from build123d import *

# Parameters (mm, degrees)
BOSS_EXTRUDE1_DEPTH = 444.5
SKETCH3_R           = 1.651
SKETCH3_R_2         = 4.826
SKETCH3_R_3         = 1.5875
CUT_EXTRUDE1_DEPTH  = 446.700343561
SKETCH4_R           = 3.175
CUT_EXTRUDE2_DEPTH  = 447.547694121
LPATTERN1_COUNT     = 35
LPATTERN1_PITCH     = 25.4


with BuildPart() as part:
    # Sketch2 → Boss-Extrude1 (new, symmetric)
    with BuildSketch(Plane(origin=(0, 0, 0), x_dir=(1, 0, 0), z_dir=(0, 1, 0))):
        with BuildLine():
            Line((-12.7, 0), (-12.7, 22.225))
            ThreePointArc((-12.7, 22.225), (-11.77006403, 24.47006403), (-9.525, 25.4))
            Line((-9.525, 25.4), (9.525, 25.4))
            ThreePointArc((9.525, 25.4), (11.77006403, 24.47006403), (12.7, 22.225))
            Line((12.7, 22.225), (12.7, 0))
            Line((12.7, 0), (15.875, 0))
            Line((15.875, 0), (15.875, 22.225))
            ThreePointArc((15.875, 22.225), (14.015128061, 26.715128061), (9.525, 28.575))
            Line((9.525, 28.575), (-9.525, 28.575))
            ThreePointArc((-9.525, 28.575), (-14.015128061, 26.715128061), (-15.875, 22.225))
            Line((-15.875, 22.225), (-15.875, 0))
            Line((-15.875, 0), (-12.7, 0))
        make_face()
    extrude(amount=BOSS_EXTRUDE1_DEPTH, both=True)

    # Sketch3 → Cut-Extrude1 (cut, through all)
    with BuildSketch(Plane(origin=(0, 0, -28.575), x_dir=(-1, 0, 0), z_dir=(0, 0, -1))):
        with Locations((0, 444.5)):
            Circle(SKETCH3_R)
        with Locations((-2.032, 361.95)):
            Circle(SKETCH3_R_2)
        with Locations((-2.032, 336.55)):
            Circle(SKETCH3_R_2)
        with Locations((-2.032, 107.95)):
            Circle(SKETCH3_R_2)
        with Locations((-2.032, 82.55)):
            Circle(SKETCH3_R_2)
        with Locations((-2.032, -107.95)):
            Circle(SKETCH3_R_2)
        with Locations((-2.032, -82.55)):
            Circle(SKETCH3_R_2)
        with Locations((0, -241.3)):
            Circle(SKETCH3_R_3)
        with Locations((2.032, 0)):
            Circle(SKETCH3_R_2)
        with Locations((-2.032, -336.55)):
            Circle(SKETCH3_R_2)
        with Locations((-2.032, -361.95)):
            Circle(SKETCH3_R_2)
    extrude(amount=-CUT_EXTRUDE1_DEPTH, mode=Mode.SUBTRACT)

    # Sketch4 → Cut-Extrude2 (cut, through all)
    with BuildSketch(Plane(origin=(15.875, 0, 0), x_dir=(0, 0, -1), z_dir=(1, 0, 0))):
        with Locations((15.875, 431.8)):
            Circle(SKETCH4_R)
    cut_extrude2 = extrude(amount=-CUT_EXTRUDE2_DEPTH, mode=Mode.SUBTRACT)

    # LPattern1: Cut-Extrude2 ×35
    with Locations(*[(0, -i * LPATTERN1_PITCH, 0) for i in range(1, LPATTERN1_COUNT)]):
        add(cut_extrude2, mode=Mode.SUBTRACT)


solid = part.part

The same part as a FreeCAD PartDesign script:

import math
import FreeCAD as App
import Part
import Sketcher
from FreeCAD import Vector
Q = App.Units.Quantity

doc = App.newDocument("Part")
body = doc.addObject("PartDesign::Body", "Body")

# Sketch on XZ plane
sketch1 = doc.addObject("Sketcher::SketchObject", "Sketch")
body.addObject(sketch1)
sketch1.AttachmentSupport = (doc.XZ_Plane, [""])
sketch1.MapMode = "FlatFace"
sketch1.addGeometry([
    Part.LineSegment(Vector(-12.7, 0, 0), Vector(-12.7, -22.2, 0)),  # 0
    Part.ArcOfCircle(Part.Circle(Vector(-9.5, -22.2, 0), Vector(0, 0, 1), 3.2), math.radians(-180), math.radians(-90)),  # 1
    Part.LineSegment(Vector(-9.5, -25.4, 0), Vector(9.5, -25.4, 0)),  # 2
    Part.ArcOfCircle(Part.Circle(Vector(9.5, -22.2, 0), Vector(0, 0, 1), 3.2), math.radians(-90), math.radians(0)),  # 3
    Part.LineSegment(Vector(12.7, -22.2, 0), Vector(12.7, 0, 0)),  # 4
    Part.LineSegment(Vector(12.7, 0, 0), Vector(15.9, 0, 0)),  # 5
    Part.LineSegment(Vector(15.9, 0, 0), Vector(15.9, -22.2, 0)),  # 6
    Part.ArcOfCircle(Part.Circle(Vector(9.5, -22.2, 0), Vector(0, 0, 1), 6.3), math.radians(-90), math.radians(0)),  # 7
    Part.LineSegment(Vector(9.5, -28.6, 0), Vector(-9.5, -28.6, 0)),  # 8
    Part.ArcOfCircle(Part.Circle(Vector(-9.5, -22.2, 0), Vector(0, 0, 1), 6.3), math.radians(180), math.radians(270)),  # 9
    Part.LineSegment(Vector(-15.9, -22.2, 0), Vector(-15.9, 0, 0)),  # 10
    Part.LineSegment(Vector(-15.9, 0, 0), Vector(-12.7, 0, 0)),  # 11
], False)
sketch1.addConstraint([
    Sketcher.Constraint("Tangent", 0, 2, 1, 1),
    Sketcher.Constraint("Tangent", 1, 2, 2, 1),
    Sketcher.Constraint("Tangent", 2, 2, 3, 1),
    Sketcher.Constraint("Tangent", 3, 2, 4, 1),
    Sketcher.Constraint("Coincident", 4, 2, 5, 1),
    Sketcher.Constraint("Coincident", 5, 2, 6, 1),
    Sketcher.Constraint("Tangent", 6, 2, 7, 2),
    Sketcher.Constraint("Tangent", 7, 1, 8, 1),
    Sketcher.Constraint("Tangent", 8, 2, 9, 2),
    Sketcher.Constraint("Tangent", 9, 1, 10, 1),
    Sketcher.Constraint("Coincident", 10, 2, 11, 1),
    Sketcher.Constraint("Coincident", 11, 2, 0, 1),
    Sketcher.Constraint("Vertical", 0),
    Sketcher.Constraint("Horizontal", 2),
    Sketcher.Constraint("Vertical", 4),
    Sketcher.Constraint("Horizontal", 5),
    Sketcher.Constraint("Vertical", 6),
    Sketcher.Constraint("Horizontal", 8),
    Sketcher.Constraint("Vertical", 10),
    Sketcher.Constraint("Horizontal", 11),
    Sketcher.Constraint("Coincident", 7, 3, 3, 3),
    Sketcher.Constraint("Coincident", 9, 3, 1, 3),
    Sketcher.Constraint("Equal", 1, 3),
    Sketcher.Constraint("Symmetric", 5, 2, 10, 2, -1, 1),
    Sketcher.Constraint("PointOnObject", 4, 2, -1),
    Sketcher.Constraint("Radius", 7, Q("0.25 in")),
    Sketcher.Constraint("DistanceY", 1, 2, -1, 1, Q("1 in")),
    Sketcher.Constraint("Radius", 1, Q("0.125 in")),
    Sketcher.Constraint("DistanceX", 2, 1, 2, 2, Q("0.75 in")),
])
pad1 = doc.addObject("PartDesign::Pad", "Pad")
body.addObject(pad1)
pad1.Profile = sketch1
pad1.Length = Q("35 in")
pad1.Midplane = True

# Sketch on XY plane
sketch2 = doc.addObject("Sketcher::SketchObject", "Sketch001")
body.addObject(sketch2)
sketch2.AttachmentSupport = (doc.XY_Plane, [""])
sketch2.MapMode = "FlatFace"
sketch2.AttachmentOffset = App.Placement(Vector(0, 0, -1.125 * 25.4), App.Rotation())
sketch2.addGeometry([
    Part.Circle(Vector(0, 444.5, 0), Vector(0, 0, 1), 1.7),  # 0
    Part.Circle(Vector(2, 361.9, 0), Vector(0, 0, 1), 4.8),  # 1
    Part.Circle(Vector(2, 336.6, 0), Vector(0, 0, 1), 4.8),  # 2
    Part.Circle(Vector(2, 108, 0), Vector(0, 0, 1), 4.8),  # 3
    Part.Circle(Vector(2, 82.5, 0), Vector(0, 0, 1), 4.8),  # 4
    Part.Circle(Vector(2, -108, 0), Vector(0, 0, 1), 4.8),  # 5
    Part.Circle(Vector(2, -82.5, 0), Vector(0, 0, 1), 4.8),  # 6
    Part.Circle(Vector(0, -241.3, 0), Vector(0, 0, 1), 1.6),  # 7
    Part.Circle(Vector(-2, 0, 0), Vector(0, 0, 1), 4.8),  # 8
    Part.Circle(Vector(2, -336.6, 0), Vector(0, 0, 1), 4.8),  # 9
    Part.Circle(Vector(2, -361.9, 0), Vector(0, 0, 1), 4.8),  # 10
], False)
sketch2.addConstraint([
    Sketcher.Constraint("Equal", 1, 2),
    Sketcher.Constraint("Equal", 2, 3),
    Sketcher.Constraint("Equal", 3, 4),
    Sketcher.Constraint("Equal", 4, 5),
    Sketcher.Constraint("Equal", 5, 6),
    Sketcher.Constraint("Equal", 6, 8),
    Sketcher.Constraint("Equal", 8, 9),
    Sketcher.Constraint("Equal", 9, 10),
    Sketcher.Constraint("Symmetric", 3, 3, 5, 3, -1),
    Sketcher.Constraint("Symmetric", 4, 3, 6, 3, -1),
    Sketcher.Constraint("Symmetric", 2, 3, 9, 3, -1),
    Sketcher.Constraint("Symmetric", 1, 3, 10, 3, -1),
    Sketcher.Constraint("PointOnObject", 0, 3, -2),
    Sketcher.Constraint("PointOnObject", 7, 3, -2),
    Sketcher.Constraint("PointOnObject", 8, 3, -1),
    Sketcher.Constraint("Vertical", 1, 3, 2, 3),
    Sketcher.Constraint("Vertical", 2, 3, 3, 3),
    Sketcher.Constraint("Vertical", 3, 3, 4, 3),
    Sketcher.Constraint("Diameter", 0, Q("0.13 in")),
    Sketcher.Constraint("Diameter", 1, Q("0.38 in")),
    Sketcher.Constraint("Diameter", 7, Q("0.125 in")),
    Sketcher.Constraint("DistanceY", 2, 3, 1, 3, Q("1 in")),
    Sketcher.Constraint("DistanceY", 3, 3, 2, 3, Q("9 in")),
    Sketcher.Constraint("DistanceY", 4, 3, 3, 3, Q("1 in")),
    Sketcher.Constraint("DistanceY", -1, 1, 0, 3, Q("17.5 in")),
    Sketcher.Constraint("DistanceY", 7, 3, -1, 1, Q("9.5 in")),
    Sketcher.Constraint("DistanceY", 5, 3, 4, 3, Q("7.5 in")),
    Sketcher.Constraint("DistanceX", -1, 1, 1, 3, Q("0.08 in")),
    Sketcher.Constraint("DistanceX", 8, 3, -1, 1, Q("0.08 in")),
])
pocket1 = doc.addObject("PartDesign::Pocket", "Pocket")
body.addObject(pocket1)
pocket1.Profile = sketch2
pocket1.Type = "ThroughAll"
pocket1.Reversed = True

# Sketch on YZ plane
sketch3 = doc.addObject("Sketcher::SketchObject", "Sketch002")
body.addObject(sketch3)
sketch3.AttachmentSupport = (doc.YZ_Plane, [""])
sketch3.MapMode = "FlatFace"
sketch3.AttachmentOffset = App.Placement(Vector(0, 0, 0.625 * 25.4), App.Rotation())
sketch3.addGeometry(Part.Circle(Vector(431.8, -15.9, 0), Vector(0, 0, 1), 3.2), False)
sketch3.addConstraint([
    Sketcher.Constraint("Diameter", 0, Q("0.25 in")),
    Sketcher.Constraint("DistanceX", -1, 1, 0, 3, Q("17 in")),
    Sketcher.Constraint("DistanceY", 0, 3, -1, 1, Q("0.625 in")),
])
pocket2 = doc.addObject("PartDesign::Pocket", "Pocket001")
body.addObject(pocket2)
pocket2.Profile = sketch3
pocket2.Type = "ThroughAll"
doc.recompute()

linearpattern = doc.addObject("PartDesign::LinearPattern", "LinearPattern")
body.addObject(linearpattern)
linearpattern.Originals = [pocket2]
linearpattern.Direction = (doc.Y_Axis, [""])
linearpattern.Mode = "offset"
linearpattern.Offset = Q("1 in")
linearpattern.Occurrences = 35
linearpattern.Reversed = True
body.Tip = linearpattern

doc.recompute()
